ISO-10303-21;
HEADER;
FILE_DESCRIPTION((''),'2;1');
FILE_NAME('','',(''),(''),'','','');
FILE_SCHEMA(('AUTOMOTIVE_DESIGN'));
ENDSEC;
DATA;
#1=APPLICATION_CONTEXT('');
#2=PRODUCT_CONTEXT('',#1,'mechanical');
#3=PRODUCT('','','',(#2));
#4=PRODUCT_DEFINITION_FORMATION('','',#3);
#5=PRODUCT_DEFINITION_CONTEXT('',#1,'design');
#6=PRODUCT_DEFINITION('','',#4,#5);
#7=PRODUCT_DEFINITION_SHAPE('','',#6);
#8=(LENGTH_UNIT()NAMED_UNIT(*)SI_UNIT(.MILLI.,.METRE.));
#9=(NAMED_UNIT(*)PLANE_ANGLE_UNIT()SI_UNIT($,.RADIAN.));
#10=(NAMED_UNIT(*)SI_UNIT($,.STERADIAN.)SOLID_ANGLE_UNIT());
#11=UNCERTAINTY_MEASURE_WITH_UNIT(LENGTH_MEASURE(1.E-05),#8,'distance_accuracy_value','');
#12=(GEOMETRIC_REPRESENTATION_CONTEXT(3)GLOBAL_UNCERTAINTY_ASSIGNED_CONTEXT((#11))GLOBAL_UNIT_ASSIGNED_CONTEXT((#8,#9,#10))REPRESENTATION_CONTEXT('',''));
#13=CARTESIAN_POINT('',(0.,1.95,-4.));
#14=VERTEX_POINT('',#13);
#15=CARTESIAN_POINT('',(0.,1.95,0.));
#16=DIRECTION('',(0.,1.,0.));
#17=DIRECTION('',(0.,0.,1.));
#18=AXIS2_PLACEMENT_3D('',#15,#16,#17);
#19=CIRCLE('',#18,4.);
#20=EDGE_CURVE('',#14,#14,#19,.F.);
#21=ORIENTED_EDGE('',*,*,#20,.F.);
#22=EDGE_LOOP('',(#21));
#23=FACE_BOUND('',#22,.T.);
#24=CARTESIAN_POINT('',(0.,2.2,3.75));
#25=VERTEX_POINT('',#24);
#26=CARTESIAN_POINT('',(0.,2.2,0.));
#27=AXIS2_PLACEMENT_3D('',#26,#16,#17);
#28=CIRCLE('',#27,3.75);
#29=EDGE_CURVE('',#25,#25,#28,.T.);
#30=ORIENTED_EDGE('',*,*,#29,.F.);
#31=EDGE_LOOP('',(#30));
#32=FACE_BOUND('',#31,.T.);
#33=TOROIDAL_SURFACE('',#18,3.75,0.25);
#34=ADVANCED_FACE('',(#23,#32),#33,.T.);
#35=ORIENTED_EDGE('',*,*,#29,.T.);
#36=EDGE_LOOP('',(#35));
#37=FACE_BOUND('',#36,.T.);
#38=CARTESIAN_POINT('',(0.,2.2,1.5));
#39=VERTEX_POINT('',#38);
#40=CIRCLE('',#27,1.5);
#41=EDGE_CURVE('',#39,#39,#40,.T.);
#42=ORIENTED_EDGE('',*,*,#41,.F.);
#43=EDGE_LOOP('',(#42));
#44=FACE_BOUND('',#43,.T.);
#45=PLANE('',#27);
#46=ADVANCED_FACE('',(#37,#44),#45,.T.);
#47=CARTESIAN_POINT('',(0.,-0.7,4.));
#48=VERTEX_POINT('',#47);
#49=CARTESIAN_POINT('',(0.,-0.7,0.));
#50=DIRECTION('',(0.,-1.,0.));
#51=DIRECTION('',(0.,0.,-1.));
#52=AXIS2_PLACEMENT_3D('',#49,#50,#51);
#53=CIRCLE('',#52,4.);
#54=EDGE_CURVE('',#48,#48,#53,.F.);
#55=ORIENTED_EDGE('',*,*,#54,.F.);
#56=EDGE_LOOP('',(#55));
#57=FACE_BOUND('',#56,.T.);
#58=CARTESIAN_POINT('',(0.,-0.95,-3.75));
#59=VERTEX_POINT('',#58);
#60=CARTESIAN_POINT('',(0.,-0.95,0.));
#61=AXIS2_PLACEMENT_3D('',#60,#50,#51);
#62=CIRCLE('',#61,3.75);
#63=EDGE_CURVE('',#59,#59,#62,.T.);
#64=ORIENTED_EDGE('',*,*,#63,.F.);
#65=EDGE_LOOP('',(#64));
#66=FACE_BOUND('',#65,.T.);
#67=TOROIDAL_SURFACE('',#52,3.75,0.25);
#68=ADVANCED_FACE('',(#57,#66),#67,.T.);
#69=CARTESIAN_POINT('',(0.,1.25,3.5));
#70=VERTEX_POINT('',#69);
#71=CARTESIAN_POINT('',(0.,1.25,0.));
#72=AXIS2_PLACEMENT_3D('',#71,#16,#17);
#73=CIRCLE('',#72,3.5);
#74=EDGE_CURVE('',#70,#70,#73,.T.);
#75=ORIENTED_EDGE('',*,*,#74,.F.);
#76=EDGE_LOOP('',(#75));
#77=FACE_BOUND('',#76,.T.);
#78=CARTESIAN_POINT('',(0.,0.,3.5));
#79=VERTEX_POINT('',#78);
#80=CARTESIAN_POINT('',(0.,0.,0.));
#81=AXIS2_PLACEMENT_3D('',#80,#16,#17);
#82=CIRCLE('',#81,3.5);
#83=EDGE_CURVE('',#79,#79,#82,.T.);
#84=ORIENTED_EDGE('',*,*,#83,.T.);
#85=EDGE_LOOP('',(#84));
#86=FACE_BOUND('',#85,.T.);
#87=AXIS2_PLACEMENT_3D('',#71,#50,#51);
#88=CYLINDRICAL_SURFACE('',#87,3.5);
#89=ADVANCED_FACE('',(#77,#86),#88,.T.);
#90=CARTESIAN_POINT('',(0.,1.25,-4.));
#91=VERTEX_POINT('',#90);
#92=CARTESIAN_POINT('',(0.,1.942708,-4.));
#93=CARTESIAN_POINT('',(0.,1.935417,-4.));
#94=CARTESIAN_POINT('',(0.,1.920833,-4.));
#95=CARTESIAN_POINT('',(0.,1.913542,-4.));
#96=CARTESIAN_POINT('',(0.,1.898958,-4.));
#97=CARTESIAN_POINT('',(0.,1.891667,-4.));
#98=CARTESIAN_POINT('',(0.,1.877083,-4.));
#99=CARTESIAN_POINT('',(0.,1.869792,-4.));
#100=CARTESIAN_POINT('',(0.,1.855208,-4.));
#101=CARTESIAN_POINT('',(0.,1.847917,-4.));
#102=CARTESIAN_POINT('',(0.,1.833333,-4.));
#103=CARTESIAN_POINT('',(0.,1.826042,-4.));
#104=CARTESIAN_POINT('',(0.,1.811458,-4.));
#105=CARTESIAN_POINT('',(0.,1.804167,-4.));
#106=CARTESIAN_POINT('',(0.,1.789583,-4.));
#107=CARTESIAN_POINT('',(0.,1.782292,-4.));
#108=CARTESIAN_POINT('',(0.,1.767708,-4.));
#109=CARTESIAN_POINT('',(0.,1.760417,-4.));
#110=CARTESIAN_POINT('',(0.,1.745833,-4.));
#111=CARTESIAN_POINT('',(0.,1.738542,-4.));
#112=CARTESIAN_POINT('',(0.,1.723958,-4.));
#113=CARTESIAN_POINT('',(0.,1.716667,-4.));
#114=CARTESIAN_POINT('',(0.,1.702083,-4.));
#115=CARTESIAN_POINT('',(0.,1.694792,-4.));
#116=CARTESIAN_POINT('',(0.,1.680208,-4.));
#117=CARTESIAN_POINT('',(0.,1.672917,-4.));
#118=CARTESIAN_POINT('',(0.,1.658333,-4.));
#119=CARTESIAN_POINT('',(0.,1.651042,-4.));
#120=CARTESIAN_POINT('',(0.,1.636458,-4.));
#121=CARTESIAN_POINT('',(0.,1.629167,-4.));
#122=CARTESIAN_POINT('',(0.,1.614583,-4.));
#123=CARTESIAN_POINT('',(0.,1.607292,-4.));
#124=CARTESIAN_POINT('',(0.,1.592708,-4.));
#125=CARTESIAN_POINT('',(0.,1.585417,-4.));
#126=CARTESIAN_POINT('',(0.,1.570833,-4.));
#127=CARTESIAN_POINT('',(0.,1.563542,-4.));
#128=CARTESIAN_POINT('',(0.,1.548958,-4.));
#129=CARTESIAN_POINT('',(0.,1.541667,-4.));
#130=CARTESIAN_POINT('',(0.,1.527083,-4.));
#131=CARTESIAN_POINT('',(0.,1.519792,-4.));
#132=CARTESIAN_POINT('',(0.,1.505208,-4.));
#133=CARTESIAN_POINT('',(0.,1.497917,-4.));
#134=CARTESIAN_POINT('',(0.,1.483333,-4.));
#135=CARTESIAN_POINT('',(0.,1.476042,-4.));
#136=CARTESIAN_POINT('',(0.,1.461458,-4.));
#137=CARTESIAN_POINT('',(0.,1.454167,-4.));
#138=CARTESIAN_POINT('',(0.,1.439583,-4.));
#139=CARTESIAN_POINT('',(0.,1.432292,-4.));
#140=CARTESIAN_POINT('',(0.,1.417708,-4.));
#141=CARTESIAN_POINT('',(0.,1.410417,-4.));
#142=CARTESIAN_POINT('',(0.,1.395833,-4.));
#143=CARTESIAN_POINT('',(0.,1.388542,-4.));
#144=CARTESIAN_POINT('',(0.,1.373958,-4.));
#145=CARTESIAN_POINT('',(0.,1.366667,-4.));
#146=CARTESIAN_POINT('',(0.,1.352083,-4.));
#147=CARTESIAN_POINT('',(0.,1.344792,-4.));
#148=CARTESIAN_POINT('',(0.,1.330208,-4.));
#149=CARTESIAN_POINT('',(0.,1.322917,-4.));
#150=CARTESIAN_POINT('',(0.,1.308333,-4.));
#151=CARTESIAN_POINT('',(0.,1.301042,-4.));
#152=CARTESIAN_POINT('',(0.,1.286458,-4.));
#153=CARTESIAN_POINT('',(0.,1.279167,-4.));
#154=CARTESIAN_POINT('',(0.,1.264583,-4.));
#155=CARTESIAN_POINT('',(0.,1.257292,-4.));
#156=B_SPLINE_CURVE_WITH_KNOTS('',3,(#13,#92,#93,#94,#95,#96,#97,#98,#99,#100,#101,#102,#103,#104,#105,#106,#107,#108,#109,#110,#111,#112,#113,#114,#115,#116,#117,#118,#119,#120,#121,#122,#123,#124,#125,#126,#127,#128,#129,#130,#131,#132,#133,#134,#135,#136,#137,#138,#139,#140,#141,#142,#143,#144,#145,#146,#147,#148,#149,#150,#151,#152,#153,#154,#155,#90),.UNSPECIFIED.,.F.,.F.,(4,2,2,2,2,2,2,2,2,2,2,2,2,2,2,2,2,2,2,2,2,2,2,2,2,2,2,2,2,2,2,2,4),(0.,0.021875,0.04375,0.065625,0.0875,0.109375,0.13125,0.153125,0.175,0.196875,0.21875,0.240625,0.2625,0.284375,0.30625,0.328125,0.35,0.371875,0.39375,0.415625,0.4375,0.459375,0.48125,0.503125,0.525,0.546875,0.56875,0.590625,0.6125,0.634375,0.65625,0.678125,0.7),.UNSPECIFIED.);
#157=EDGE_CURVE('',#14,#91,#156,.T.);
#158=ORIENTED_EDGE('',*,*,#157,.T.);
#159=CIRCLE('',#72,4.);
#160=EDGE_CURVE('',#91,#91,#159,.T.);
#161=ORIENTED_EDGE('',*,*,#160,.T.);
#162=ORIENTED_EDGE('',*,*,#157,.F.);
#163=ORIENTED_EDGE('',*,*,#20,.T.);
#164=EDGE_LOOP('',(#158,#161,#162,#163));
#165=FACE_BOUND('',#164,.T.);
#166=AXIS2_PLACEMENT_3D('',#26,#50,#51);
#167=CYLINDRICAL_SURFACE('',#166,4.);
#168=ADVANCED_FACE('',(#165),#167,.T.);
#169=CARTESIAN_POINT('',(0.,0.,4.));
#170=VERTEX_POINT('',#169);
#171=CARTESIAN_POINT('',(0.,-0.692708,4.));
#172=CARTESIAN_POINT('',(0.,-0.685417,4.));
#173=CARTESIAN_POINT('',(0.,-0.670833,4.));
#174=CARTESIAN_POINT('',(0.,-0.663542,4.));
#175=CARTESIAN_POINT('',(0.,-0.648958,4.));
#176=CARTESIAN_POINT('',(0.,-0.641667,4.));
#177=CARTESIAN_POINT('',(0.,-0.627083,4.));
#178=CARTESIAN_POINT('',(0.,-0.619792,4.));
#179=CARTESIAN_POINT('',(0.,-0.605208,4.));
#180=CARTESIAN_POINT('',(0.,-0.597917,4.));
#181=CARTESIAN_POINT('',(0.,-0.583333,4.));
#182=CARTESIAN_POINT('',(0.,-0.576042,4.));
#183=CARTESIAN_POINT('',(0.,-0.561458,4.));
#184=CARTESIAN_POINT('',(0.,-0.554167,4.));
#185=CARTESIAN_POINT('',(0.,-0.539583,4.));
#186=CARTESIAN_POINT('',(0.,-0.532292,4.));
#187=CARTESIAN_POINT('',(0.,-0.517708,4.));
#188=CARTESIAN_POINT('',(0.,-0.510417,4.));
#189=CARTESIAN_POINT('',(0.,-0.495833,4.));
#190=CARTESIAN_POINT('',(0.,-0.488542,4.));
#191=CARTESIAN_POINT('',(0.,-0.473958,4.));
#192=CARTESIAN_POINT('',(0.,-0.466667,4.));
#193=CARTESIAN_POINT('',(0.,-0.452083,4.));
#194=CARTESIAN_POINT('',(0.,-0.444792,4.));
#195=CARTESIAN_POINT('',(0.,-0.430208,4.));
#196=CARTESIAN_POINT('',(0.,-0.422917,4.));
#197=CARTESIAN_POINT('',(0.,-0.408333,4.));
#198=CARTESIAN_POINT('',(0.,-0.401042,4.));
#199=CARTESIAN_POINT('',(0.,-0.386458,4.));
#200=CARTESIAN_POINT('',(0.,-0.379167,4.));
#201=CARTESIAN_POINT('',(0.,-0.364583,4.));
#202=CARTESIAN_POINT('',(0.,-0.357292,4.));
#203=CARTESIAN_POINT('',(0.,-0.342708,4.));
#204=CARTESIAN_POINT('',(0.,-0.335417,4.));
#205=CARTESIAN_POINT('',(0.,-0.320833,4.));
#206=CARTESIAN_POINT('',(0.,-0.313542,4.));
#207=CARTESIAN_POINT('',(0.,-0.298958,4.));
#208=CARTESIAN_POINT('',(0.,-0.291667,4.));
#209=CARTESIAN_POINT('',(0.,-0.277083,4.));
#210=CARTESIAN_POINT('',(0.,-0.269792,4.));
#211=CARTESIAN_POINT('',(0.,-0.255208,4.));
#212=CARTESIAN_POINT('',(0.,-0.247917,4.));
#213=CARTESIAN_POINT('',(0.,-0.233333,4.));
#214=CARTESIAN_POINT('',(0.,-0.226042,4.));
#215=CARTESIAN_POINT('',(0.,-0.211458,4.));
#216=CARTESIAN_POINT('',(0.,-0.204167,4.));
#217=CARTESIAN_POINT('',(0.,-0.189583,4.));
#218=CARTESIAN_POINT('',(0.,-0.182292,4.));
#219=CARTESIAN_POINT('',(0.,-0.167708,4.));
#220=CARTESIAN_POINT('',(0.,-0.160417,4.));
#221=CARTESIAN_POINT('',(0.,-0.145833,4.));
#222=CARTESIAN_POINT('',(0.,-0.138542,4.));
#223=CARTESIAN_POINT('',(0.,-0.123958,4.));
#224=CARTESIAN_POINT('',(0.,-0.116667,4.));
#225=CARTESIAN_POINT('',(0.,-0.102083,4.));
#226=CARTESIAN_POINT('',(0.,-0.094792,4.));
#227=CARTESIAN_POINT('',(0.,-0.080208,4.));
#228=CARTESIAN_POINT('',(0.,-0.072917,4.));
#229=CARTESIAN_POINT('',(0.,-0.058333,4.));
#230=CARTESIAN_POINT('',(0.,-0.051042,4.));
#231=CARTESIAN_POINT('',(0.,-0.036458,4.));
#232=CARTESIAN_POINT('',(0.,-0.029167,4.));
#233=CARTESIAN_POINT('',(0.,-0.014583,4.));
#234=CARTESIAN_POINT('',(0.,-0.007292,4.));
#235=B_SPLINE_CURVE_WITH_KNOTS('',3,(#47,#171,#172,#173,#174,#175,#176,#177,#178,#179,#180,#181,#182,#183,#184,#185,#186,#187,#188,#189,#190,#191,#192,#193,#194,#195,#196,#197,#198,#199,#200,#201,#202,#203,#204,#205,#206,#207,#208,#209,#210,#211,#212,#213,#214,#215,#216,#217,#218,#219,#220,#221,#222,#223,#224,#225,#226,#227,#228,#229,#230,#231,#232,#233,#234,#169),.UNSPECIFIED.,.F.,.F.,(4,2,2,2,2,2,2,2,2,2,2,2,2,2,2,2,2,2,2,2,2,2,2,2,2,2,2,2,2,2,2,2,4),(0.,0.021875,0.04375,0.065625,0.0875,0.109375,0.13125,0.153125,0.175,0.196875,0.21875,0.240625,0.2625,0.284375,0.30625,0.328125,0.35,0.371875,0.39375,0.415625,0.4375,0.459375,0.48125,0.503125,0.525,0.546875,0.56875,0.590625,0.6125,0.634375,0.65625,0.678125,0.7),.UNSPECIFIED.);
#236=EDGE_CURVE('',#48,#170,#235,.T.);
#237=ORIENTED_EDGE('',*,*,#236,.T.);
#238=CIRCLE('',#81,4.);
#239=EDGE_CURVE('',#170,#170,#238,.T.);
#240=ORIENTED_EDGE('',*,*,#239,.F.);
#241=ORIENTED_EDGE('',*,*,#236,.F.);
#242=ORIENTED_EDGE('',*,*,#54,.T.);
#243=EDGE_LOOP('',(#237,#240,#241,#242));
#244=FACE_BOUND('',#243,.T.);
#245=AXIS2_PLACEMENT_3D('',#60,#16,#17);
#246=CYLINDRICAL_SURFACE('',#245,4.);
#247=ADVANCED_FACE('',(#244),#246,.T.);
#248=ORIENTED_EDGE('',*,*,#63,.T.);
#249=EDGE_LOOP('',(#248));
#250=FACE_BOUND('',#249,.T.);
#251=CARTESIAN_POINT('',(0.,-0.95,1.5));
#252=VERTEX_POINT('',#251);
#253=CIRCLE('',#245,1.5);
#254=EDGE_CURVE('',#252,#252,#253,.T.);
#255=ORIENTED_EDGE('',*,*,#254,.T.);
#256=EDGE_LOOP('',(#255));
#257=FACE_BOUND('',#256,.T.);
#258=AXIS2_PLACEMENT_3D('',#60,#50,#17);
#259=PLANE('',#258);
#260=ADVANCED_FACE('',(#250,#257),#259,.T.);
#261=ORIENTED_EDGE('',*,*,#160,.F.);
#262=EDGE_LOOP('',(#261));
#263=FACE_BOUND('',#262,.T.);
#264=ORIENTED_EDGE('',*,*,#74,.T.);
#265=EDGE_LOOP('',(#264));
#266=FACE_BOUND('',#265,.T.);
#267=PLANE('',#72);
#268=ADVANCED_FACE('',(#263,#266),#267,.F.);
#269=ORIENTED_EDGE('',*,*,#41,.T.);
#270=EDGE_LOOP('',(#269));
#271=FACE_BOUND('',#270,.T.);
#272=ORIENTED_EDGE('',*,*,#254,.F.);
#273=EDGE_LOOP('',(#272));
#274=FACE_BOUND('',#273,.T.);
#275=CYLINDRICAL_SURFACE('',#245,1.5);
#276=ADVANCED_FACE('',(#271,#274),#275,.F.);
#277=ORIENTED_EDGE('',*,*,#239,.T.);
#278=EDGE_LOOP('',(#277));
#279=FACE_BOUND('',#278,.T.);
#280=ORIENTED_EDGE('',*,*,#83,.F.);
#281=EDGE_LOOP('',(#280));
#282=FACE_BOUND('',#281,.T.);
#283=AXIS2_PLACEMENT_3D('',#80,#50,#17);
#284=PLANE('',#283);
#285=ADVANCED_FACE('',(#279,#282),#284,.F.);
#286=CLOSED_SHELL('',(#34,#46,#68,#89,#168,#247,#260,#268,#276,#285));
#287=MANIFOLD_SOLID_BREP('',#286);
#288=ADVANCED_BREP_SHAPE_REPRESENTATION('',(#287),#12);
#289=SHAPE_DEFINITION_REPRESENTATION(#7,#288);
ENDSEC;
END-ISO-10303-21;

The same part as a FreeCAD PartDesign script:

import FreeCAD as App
import Part
import Sketcher
Q = App.Units.Quantity


def edges_at(feature, points):
    """Names of the edges that pass closest to the given points."""
    edges = feature.Shape.Edges
    near = lambda p: min(range(len(edges)), key=lambda i: edges[i].distToShape(Part.Vertex(*p))[0])
    return sorted({f"Edge{near(p) + 1}" for p in points})

doc = App.newDocument("Part")
body = doc.addObject("PartDesign::Body", "Body")

sketch1 = doc.addObject("Sketcher::SketchObject", "Sketch")
body.addObject(sketch1)
sketch1.AttachmentSupport = (doc.XZ_Plane, [""])
sketch1.MapMode = "FlatFace"
sketch1.addGeometry(Part.Circle(App.Vector(0, 0, 0), App.Vector(0, 0, 1), 3.5), False)
sketch1.addConstraint([
    Sketcher.Constraint("Coincident", 0, 3, -1, 1),
    Sketcher.Constraint("Diameter", 0, Q("7 mm")),
])
pad1 = doc.addObject("PartDesign::Pad", "Pad")
body.addObject(pad1)
pad1.Profile = sketch1
pad1.Length = 1.25
pad1.Reversed = True

sketch2 = doc.addObject("Sketcher::SketchObject", "Sketch001")
body.addObject(sketch2)
sketch2.AttachmentSupport = (doc.XZ_Plane, [""])
sketch2.MapMode = "FlatFace"
sketch2.AttachmentOffset = App.Placement(App.Vector(0, 0, -1.25), App.Rotation())
sketch2.addGeometry(Part.Circle(App.Vector(0, 0, 0), App.Vector(0, 0, 1), 4), False)
sketch2.addConstraint([
    Sketcher.Constraint("Coincident", 0, 3, -1, 1),
    Sketcher.Constraint("Diameter", 0, Q("8 mm")),
])
pad2 = doc.addObject("PartDesign::Pad", "Pad001")
body.addObject(pad2)
pad2.Profile = sketch2
pad2.Length = 0.95
pad2.Reversed = True
doc.recompute()

fillet = doc.addObject("PartDesign::Fillet", "Fillet")
body.addObject(fillet)
fillet.Base = (pad2, edges_at(pad2, [(0, 2.2, 4)]))
fillet.Radius = 0.25
doc.recompute()

datumplane = doc.addObject("PartDesign::Plane", "DatumPlane")
body.addObject(datumplane)
datumplane.AttachmentSupport = (doc.XZ_Plane, [""])
datumplane.MapMode = "FlatFace"
datumplane.AttachmentOffset = App.Placement(App.Vector(0, 0, -0.625), App.Rotation())
mirrored = doc.addObject("PartDesign::Mirrored", "Mirrored")
body.addObject(mirrored)
mirrored.Originals = [pad2]
mirrored.MirrorPlane = (datumplane, [""])
body.Tip = mirrored
doc.recompute()

fillet2 = doc.addObject("PartDesign::Fillet", "Fillet001")
body.addObject(fillet2)
fillet2.Base = (mirrored, edges_at(mirrored, [(0, -0.95, 4)]))
fillet2.Radius = 0.25

sketch3 = doc.addObject("Sketcher::SketchObject", "Sketch002")
body.addObject(sketch3)
sketch3.AttachmentSupport = (doc.XZ_Plane, [""])
sketch3.MapMode = "FlatFace"
sketch3.AttachmentOffset = App.Placement(App.Vector(0, 0, -2.2), App.Rotation())
sketch3.addGeometry(Part.Circle(App.Vector(0, 0, 0), App.Vector(0, 0, 1), 1.5), False)
sketch3.addConstraint([
    Sketcher.Constraint("Coincident", 0, 3, -1, 1),
    Sketcher.Constraint("Diameter", 0, Q("3 mm")),
])
pocket1 = doc.addObject("PartDesign::Pocket", "Pocket")
body.addObject(pocket1)
pocket1.Profile = sketch3
pocket1.Type = "ThroughAll"
pocket1.Reversed = True

doc.recompute()
